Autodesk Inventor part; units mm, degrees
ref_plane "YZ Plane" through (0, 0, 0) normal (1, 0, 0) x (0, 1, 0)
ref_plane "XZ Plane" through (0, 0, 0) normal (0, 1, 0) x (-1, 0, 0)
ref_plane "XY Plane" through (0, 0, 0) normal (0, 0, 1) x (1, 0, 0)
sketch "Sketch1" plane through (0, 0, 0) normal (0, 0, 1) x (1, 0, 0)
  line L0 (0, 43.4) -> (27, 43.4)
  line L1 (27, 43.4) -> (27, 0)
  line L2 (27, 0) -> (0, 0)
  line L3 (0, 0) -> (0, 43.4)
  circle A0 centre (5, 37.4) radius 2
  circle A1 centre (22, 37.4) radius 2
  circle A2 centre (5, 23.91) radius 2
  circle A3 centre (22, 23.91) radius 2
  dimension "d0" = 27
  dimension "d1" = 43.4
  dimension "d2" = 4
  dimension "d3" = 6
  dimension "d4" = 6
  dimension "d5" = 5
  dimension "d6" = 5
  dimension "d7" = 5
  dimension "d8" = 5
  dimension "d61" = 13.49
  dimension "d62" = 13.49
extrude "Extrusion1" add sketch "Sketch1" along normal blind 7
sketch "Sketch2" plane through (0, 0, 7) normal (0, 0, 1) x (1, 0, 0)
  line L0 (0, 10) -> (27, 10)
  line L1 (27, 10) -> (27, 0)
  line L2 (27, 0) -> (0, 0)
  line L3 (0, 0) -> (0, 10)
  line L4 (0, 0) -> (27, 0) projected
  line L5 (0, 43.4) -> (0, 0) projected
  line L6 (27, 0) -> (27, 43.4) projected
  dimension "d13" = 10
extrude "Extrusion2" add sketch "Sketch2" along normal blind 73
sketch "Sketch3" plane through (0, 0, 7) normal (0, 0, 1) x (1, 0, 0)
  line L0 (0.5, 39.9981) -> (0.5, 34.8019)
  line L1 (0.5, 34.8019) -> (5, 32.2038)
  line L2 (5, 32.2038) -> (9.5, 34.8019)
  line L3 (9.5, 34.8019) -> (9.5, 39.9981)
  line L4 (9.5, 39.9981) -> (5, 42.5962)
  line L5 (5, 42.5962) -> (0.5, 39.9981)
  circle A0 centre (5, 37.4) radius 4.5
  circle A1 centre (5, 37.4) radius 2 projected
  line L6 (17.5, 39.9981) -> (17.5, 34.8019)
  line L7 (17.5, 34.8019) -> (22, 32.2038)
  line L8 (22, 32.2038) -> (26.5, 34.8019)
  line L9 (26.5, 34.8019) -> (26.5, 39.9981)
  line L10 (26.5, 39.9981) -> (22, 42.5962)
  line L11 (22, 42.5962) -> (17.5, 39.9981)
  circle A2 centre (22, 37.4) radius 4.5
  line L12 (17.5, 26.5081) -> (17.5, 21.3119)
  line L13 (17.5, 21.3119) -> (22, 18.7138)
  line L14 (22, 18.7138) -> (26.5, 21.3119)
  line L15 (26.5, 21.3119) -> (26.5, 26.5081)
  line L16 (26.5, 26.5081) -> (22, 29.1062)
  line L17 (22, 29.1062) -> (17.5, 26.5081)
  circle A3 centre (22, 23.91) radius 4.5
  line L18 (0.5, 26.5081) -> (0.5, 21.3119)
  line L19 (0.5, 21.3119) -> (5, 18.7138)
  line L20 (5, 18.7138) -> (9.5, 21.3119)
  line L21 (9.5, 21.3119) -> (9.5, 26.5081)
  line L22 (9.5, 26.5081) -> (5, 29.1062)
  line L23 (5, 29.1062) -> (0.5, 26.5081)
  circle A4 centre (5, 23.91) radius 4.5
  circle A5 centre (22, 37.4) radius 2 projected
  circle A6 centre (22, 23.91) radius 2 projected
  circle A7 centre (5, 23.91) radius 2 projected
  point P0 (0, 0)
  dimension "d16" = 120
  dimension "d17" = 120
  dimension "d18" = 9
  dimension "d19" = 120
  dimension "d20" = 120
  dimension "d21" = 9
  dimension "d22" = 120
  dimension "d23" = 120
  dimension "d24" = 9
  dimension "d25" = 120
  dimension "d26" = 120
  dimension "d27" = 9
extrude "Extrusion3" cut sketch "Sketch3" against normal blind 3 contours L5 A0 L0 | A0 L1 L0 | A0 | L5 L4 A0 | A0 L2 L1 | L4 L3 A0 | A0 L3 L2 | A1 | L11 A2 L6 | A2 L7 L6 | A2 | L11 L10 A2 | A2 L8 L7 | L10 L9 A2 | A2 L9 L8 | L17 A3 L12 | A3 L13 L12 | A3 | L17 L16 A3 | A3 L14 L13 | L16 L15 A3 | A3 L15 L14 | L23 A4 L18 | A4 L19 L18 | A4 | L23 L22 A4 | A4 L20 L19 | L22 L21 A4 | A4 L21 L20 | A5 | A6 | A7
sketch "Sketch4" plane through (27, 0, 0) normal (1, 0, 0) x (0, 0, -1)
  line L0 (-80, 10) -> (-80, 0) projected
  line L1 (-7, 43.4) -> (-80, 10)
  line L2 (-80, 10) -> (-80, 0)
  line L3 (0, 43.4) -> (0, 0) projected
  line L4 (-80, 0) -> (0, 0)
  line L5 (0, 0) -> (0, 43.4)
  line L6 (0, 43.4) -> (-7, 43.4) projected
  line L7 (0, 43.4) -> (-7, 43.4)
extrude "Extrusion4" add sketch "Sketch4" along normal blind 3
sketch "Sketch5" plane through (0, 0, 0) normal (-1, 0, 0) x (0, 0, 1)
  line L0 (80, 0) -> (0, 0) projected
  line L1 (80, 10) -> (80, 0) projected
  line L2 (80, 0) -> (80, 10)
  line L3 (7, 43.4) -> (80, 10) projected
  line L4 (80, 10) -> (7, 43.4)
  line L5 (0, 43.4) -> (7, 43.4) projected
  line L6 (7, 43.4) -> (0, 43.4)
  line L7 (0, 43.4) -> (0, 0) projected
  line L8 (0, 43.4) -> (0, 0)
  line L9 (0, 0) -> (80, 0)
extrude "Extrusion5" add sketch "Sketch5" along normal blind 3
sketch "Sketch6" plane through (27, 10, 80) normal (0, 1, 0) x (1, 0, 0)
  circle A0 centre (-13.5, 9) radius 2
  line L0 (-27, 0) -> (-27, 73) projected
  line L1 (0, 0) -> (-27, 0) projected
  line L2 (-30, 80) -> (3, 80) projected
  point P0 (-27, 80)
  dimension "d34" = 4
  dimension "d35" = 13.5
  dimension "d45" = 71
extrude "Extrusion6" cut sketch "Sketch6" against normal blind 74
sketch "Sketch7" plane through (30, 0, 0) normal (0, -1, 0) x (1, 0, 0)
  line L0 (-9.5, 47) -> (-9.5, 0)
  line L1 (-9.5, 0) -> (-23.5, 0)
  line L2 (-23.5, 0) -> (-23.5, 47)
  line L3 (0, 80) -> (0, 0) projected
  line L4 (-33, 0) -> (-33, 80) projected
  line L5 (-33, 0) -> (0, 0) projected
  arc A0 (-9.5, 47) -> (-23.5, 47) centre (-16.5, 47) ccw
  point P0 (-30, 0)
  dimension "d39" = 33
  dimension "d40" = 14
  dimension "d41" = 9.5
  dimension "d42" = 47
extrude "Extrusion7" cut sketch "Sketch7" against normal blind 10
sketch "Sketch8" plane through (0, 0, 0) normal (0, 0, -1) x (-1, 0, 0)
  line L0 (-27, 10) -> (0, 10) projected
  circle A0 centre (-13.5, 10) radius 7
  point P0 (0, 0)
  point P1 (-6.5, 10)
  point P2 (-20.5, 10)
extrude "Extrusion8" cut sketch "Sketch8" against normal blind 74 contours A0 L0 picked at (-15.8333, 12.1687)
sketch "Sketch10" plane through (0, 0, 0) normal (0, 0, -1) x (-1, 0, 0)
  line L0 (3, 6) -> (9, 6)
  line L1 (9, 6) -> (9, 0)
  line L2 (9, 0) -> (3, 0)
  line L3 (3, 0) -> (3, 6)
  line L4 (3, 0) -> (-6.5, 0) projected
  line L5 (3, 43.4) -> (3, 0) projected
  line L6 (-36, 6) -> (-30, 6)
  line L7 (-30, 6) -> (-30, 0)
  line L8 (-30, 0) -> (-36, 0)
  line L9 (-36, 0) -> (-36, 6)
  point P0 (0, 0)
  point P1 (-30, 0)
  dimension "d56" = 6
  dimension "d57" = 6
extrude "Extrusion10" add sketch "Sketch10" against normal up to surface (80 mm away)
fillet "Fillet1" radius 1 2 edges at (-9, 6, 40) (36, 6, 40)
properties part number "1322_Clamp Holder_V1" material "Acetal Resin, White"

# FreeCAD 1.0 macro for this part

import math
import FreeCAD as App
import Part
import Sketcher

V = App.Vector
Q = App.Units.Quantity


def edges_at(feature, points):
    """Names of the edges that pass closest to the given points."""
    edges = feature.Shape.Edges
    near = lambda p: min(range(len(edges)), key=lambda i: edges[i].distToShape(Part.Vertex(*p))[0])
    return sorted({f"Edge{near(p) + 1}" for p in points})

doc = App.newDocument("Part")
body = doc.addObject("PartDesign::Body", "Body")

# Sketch on XY plane
sketch1 = body.newObject("Sketcher::SketchObject", "Sketch")
sketch1.AttachmentSupport = (doc.getObject("XY_Plane"), [""])
sketch1.MapMode = "FlatFace"
sketch1.addGeometry([
    Part.LineSegment(V(27, 43.4, 0), V(0, 43.4, 0)),  # 0
    Part.LineSegment(V(0, 43.4, 0), V(0, 0, 0)),  # 1
    Part.LineSegment(V(0, 0, 0), V(27, 0, 0)),  # 2
    Part.LineSegment(V(27, 0, 0), V(27, 43.4, 0)),  # 3
    Part.Circle(V(5, 23.9, 0), V(0, 0, 1), 2),  # 4
    Part.Circle(V(5, 37.4, 0), V(0, 0, 1), 2),  # 5
    Part.Circle(V(22, 23.9, 0), V(0, 0, 1), 2),  # 6
    Part.Circle(V(22, 37.4, 0), V(0, 0, 1), 2),  # 7
], False)
sketch1.addConstraint([
    Sketcher.Constraint("Coincident", 0, 2, 1, 1),
    Sketcher.Constraint("Coincident", 1, 2, 2, 1),
    Sketcher.Constraint("Coincident", 2, 2, 3, 1),
    Sketcher.Constraint("Coincident", 3, 2, 0, 1),
    Sketcher.Constraint("Horizontal", 0),
    Sketcher.Constraint("Vertical", 1),
    Sketcher.Constraint("Horizontal", 2),
    Sketcher.Constraint("Vertical", 3),
    Sketcher.Constraint("Coincident", 1, 2, -1, 1),
    Sketcher.Constraint("Equal", 4, 5),
    Sketcher.Constraint("Equal", 5, 6),
    Sketcher.Constraint("Equal", 6, 7),
    Sketcher.Constraint("Horizontal", 4, 3, 6, 3),
    Sketcher.Constraint("Horizontal", 5, 3, 7, 3),
    Sketcher.Constraint("Vertical", 4, 3, 5, 3),
    Sketcher.Constraint("Vertical", 6, 3, 7, 3),
    Sketcher.Constraint("Diameter", 4, Q("4 mm")),
    Sketcher.Constraint("DistanceX", 0, 2, 0, 1, Q("27 mm")),
    Sketcher.Constraint("DistanceY", 1, 2, 1, 1, Q("43.4 mm")),
    Sketcher.Constraint("DistanceX", -1, 1, 4, 3, Q("5 mm")),
    Sketcher.Constraint("DistanceY", 5, 3, 0, 2, Q("6 mm")),
    Sketcher.Constraint("DistanceX", 6, 3, 2, 2, Q("5 mm")),
    Sketcher.Constraint("DistanceY", 4, 3, 5, 3, Q("13.49 mm")),
])
pad1 = body.newObject("PartDesign::Pad", "Pad")
pad1.Profile = sketch1
pad1.Length = 7

# Sketch on XY plane
sketch2 = body.newObject("Sketcher::SketchObject", "Sketch001")
sketch2.AttachmentSupport = (doc.getObject("XY_Plane"), [""])
sketch2.MapMode = "FlatFace"
sketch2.AttachmentOffset = App.Placement(V(0, 0, 7), App.Rotation())
sketch2.addGeometry([
    Part.LineSegment(V(27, 10, 0), V(0, 10, 0)),
    Part.LineSegment(V(0, 10, 0), V(0, 0, 0)),
    Part.LineSegment(V(0, 0, 0), V(27, 0, 0)),
    Part.LineSegment(V(27, 0, 0), V(27, 10, 0)),
], False)
sketch2.addConstraint([
    Sketcher.Constraint("Coincident", 0, 2, 1, 1),
    Sketcher.Constraint("Coincident", 1, 2, 2, 1),
    Sketcher.Constraint("Coincident", 2, 2, 3, 1),
    Sketcher.Constraint("Coincident", 3, 2, 0, 1),
    Sketcher.Constraint("Horizontal", 0),
    Sketcher.Constraint("Vertical", 1),
    Sketcher.Constraint("Horizontal", 2),
    Sketcher.Constraint("Vertical", 3),
    Sketcher.Constraint("Coincident", 1, 2, -1, 1),
    Sketcher.Constraint("DistanceY", 1, 2, 1, 1, Q("10 mm")),
    Sketcher.Constraint("DistanceX", 0, 2, 0, 1, Q("27 mm")),
])
pad2 = body.newObject("PartDesign::Pad", "Pad001")
pad2.Profile = sketch2
pad2.Length = 73

# Sketch on XY plane
sketch3 = body.newObject("Sketcher::SketchObject", "Sketch002")
sketch3.AttachmentSupport = (doc.getObject("XY_Plane"), [""])
sketch3.MapMode = "FlatFace"
sketch3.AttachmentOffset = App.Placement(V(0, 0, 7), App.Rotation())
sketch3.addGeometry([
    Part.LineSegment(V(0, 40, 0), V(0, 35, 0)),  # 0
    Part.LineSegment(V(0, 35, 0), V(5, 32, 0)),  # 1
    Part.LineSegment(V(5, 32, 0), V(10, 35, 0)),  # 2
    Part.LineSegment(V(10, 35, 0), V(10, 40, 0)),  # 3
    Part.LineSegment(V(10, 40, 0), V(5, 43, 0)),  # 4
    Part.LineSegment(V(5, 43, 0), V(0, 40, 0)),  # 5
    Part.LineSegment(V(18, 40, 0), V(18, 35, 0)),  # 6
    Part.LineSegment(V(18, 35, 0), V(22, 32, 0)),  # 7
    Part.LineSegment(V(22, 32, 0), V(26, 35, 0)),  # 8
    Part.LineSegment(V(26, 35, 0), V(26, 40, 0)),  # 9
    Part.LineSegment(V(26, 40, 0), V(22, 43, 0)),  # 10
    Part.LineSegment(V(22, 43, 0), V(18, 40, 0)),  # 11
    Part.LineSegment(V(18, 27, 0), V(18, 21, 0)),  # 12
    Part.LineSegment(V(18, 21, 0), V(22, 19, 0)),  # 13
    Part.LineSegment(V(22, 19, 0), V(26, 21, 0)),  # 14
    Part.LineSegment(V(26, 21, 0), V(26, 27, 0)),  # 15
    Part.LineSegment(V(26, 27, 0), V(22, 29, 0)),  # 16
    Part.LineSegment(V(22, 29, 0), V(18, 27, 0)),  # 17
    Part.LineSegment(V(0, 27, 0), V(0, 21, 0)),  # 18
    Part.LineSegment(V(0, 21, 0), V(5, 19, 0)),  # 19
    Part.LineSegment(V(5, 19, 0), V(10, 21, 0)),  # 20
    Part.LineSegment(V(10, 21, 0), V(10, 27, 0)),  # 21
    Part.LineSegment(V(10, 27, 0), V(5, 29, 0)),  # 22
    Part.LineSegment(V(5, 29, 0), V(0, 27, 0)),  # 23
], False)
sketch3.addConstraint([
    Sketcher.Constraint("Coincident", 0, 2, 1, 1),
    Sketcher.Constraint("Coincident", 1, 2, 2, 1),
    Sketcher.Constraint("Coincident", 2, 2, 3, 1),
    Sketcher.Constraint("Coincident", 3, 2, 4, 1),
    Sketcher.Constraint("Coincident", 4, 2, 5, 1),
    Sketcher.Constraint("Coincident", 5, 2, 0, 1),
    Sketcher.Constraint("Coincident", 6, 2, 7, 1),
    Sketcher.Constraint("Coincident", 7, 2, 8, 1),
    Sketcher.Constraint("Coincident", 8, 2, 9, 1),
    Sketcher.Constraint("Coincident", 9, 2, 10, 1),
    Sketcher.Constraint("Coincident", 10, 2, 11, 1),
    Sketcher.Constraint("Coincident", 11, 2, 6, 1),
    Sketcher.Constraint("Coincident", 12, 2, 13, 1),
    Sketcher.Constraint("Coincident", 13, 2, 14, 1),
    Sketcher.Constraint("Coincident", 14, 2, 15, 1),
    Sketcher.Constraint("Coincident", 15, 2, 16, 1),
    Sketcher.Constraint("Coincident", 16, 2, 17, 1),
    Sketcher.Constraint("Coincident", 17, 2, 12, 1),
    Sketcher.Constraint("Coincident", 18, 2, 19, 1),
    Sketcher.Constraint("Coincident", 19, 2, 20, 1),
    Sketcher.Constraint("Coincident", 20, 2, 21, 1),
    Sketcher.Constraint("Coincident", 21, 2, 22, 1),
    Sketcher.Constraint("Coincident", 22, 2, 23, 1),
    Sketcher.Constraint("Coincident", 23, 2, 18, 1),
    Sketcher.Constraint("Vertical", 0),
    Sketcher.Constraint("Vertical", 3),
    Sketcher.Constraint("Vertical", 6),
    Sketcher.Constraint("Vertical", 9),
    Sketcher.Constraint("Vertical", 12),
    Sketcher.Constraint("Vertical", 15),
    Sketcher.Constraint("Vertical", 18),
    Sketcher.Constraint("Vertical", 21),
    Sketcher.Constraint("Parallel", 1, 4),
    Sketcher.Constraint("Parallel", 2, 5),
    Sketcher.Constraint("Parallel", 4, 7),
    Sketcher.Constraint("Parallel", 5, 8),
    Sketcher.Constraint("Parallel", 7, 10),
    Sketcher.Constraint("Parallel", 8, 11),
    Sketcher.Constraint("Parallel", 10, 13),
    Sketcher.Constraint("Parallel", 11, 14),
    Sketcher.Constraint("Parallel", 13, 16),
    Sketcher.Constraint("Parallel", 14, 17),
    Sketcher.Constraint("Parallel", 16, 19),
    Sketcher.Constraint("Parallel", 17, 20),
    Sketcher.Constraint("Parallel", 19, 22),
    Sketcher.Constraint("Parallel", 20, 23),
    Sketcher.Constraint("Horizontal", 0, 2, 2, 2),
    Sketcher.Constraint("Horizontal", 3, 2, 5, 2),
    Sketcher.Constraint("Horizontal", 2, 2, 6, 2),
    Sketcher.Constraint("Horizontal", 1, 2, 7, 2),
    Sketcher.Constraint("Horizontal", 6, 2, 8, 2),
    Sketcher.Constraint("Horizontal", 5, 2, 9, 2),
    Sketcher.Constraint("Horizontal", 4, 2, 10, 2),
    Sketcher.Constraint("Horizontal", 12, 2, 14, 2),
    Sketcher.Constraint("Horizontal", 15, 2, 17, 2),
    Sketcher.Constraint("Horizontal", 14, 2, 18, 2),
    Sketcher.Constraint("Horizontal", 13, 2, 19, 2),
    Sketcher.Constraint("Horizontal", 18, 2, 20, 2),
    Sketcher.Constraint("Horizontal", 17, 2, 21, 2),
    Sketcher.Constraint("Horizontal", 16, 2, 22, 2),
    Sketcher.Constraint("Vertical", 1, 2, 4, 2),
    Sketcher.Constraint("Vertical", 11, 2, 12, 2),
    Sketcher.Constraint("Vertical", 10, 2, 13, 2),
    Sketcher.Constraint("Vertical", 5, 2, 18, 2),
    Sketcher.Constraint("Equal", 9, 12),
    Sketcher.Constraint("DistanceX", 0, 2, 2, 2, Q("9 mm")),
    Sketcher.Constraint("Angle", 1, Q("-30.0002 deg")),
    Sketcher.Constraint("DistanceX", -1, 1, 1, 2, Q("5 mm")),
    Sketcher.Constraint("DistanceX", -1, 1, 7, 2, Q("22 mm")),
    Sketcher.Constraint("DistanceY", 12, 2, 6, 2, Q("13.49 mm")),
    Sketcher.Constraint("DistanceY", 0, 2, 0, 1, Q("5.1962 mm")),
    Sketcher.Constraint("DistanceY", -1, 1, 0, 2, Q("34.802 mm")),
])
pocket1 = body.newObject("PartDesign::Pocket", "Pocket")
pocket1.Profile = sketch3
pocket1.Length = 3

# Sketch on YZ plane
sketch4 = body.newObject("Sketcher::SketchObject", "Sketch003")
sketch4.AttachmentSupport = (doc.getObject("YZ_Plane"), [""])
sketch4.MapMode = "FlatFace"
sketch4.AttachmentOffset = App.Placement(V(0, 0, 27), App.Rotation())
sketch4.addGeometry([
    Part.LineSegment(V(43, 7, 0), V(10, 80, 0)),  # 0
    Part.LineSegment(V(10, 80, 0), V(0, 80, 0)),  # 1
    Part.LineSegment(V(0, 80, 0), V(0, 0, 0)),  # 2
    Part.LineSegment(V(0, 0, 0), V(43, 0, 0)),  # 3
    Part.LineSegment(V(43, 0, 0), V(43, 7, 0)),  # 4
], False)
sketch4.addConstraint([
    Sketcher.Constraint("Coincident", 0, 2, 1, 1),
    Sketcher.Constraint("Coincident", 1, 2, 2, 1),
    Sketcher.Constraint("Coincident", 2, 2, 3, 1),
    Sketcher.Constraint("Coincident", 3, 2, 4, 1),
    Sketcher.Constraint("Coincident", 4, 2, 0, 1),
    Sketcher.Constraint("Horizontal", 1),
    Sketcher.Constraint("Vertical", 2),
    Sketcher.Constraint("Horizontal", 3),
    Sketcher.Constraint("Vertical", 4),
    Sketcher.Constraint("Coincident", 2, 2, -1, 1),
    Sketcher.Constraint("DistanceX", 1, 2, 1, 1, Q("10 mm")),
    Sketcher.Constraint("DistanceY", 2, 2, 2, 1, Q("80 mm")),
    Sketcher.Constraint("DistanceY", 4, 1, 4, 2, Q("7 mm")),
    Sketcher.Constraint("DistanceX", 3, 1, 3, 2, Q("43.4 mm")),
])
pad3 = body.newObject("PartDesign::Pad", "Pad002")
pad3.Profile = sketch4
pad3.Length = 3

# Sketch on YZ plane
sketch5 = body.newObject("Sketcher::SketchObject", "Sketch004")
sketch5.AttachmentSupport = (doc.getObject("YZ_Plane"), [""])
sketch5.MapMode = "FlatFace"
sketch5.addGeometry([
    Part.LineSegment(V(0, 0, 0), V(0, 80, 0)),  # 0
    Part.LineSegment(V(0, 80, 0), V(10, 80, 0)),  # 1
    Part.LineSegment(V(10, 80, 0), V(43, 7, 0)),  # 2
    Part.LineSegment(V(43, 7, 0), V(43, 0, 0)),  # 3
    Part.LineSegment(V(43, 0, 0), V(0, 0, 0)),  # 4
], False)
sketch5.addConstraint([
    Sketcher.Constraint("Coincident", 0, 2, 1, 1),
    Sketcher.Constraint("Coincident", 1, 2, 2, 1),
    Sketcher.Constraint("Coincident", 2, 2, 3, 1),
    Sketcher.Constraint("Coincident", 3, 2, 4, 1),
    Sketcher.Constraint("Coincident", 4, 2, 0, 1),
    Sketcher.Constraint("Vertical", 0),
    Sketcher.Constraint("Horizontal", 1),
    Sketcher.Constraint("Vertical", 3),
    Sketcher.Constraint("Horizontal", 4),
    Sketcher.Constraint("Coincident", 4, 2, -1, 1),
    Sketcher.Constraint("DistanceX", 1, 1, 1, 2, Q("10 mm")),
    Sketcher.Constraint("DistanceY", 0, 1, 0, 2, Q("80 mm")),
    Sketcher.Constraint("DistanceY", 3, 2, 3, 1, Q("7 mm")),
    Sketcher.Constraint("DistanceX", 4, 2, 4, 1, Q("43.4 mm")),
])
pad4 = body.newObject("PartDesign::Pad", "Pad003")
pad4.Profile = sketch5
pad4.Length = 3
pad4.Reversed = True

# Sketch on XZ plane
sketch6 = body.newObject("Sketcher::SketchObject", "Sketch005")
sketch6.AttachmentSupport = (doc.getObject("XZ_Plane"), [""])
sketch6.MapMode = "FlatFace"
sketch6.AttachmentOffset = App.Placement(V(0, 0, -10), App.Rotation())
sketch6.addGeometry(Part.Circle(V(13.5, 71, 0), V(0, 0, 1), 2), False)
sketch6.addConstraint([
    Sketcher.Constraint("Diameter", 0, Q("4 mm")),
    Sketcher.Constraint("DistanceY", -1, 1, 0, 3, Q("71 mm")),
    Sketcher.Constraint("DistanceX", -1, 1, 0, 3, Q("13.5 mm")),
])
pocket2 = body.newObject("PartDesign::Pocket", "Pocket001")
pocket2.Profile = sketch6
pocket2.Length = 74
pocket2.Reversed = True

# Sketch on XZ plane
sketch7 = body.newObject("Sketcher::SketchObject", "Sketch006")
sketch7.AttachmentSupport = (doc.getObject("XZ_Plane"), [""])
sketch7.MapMode = "FlatFace"
sketch7.addGeometry([
    Part.LineSegment(V(20, 0, 0), V(20, 47, 0)),
    Part.ArcOfCircle(Part.Circle(V(14, 47, 0), V(0, 0, 1), 7), math.radians(0), math.radians(180)),
    Part.LineSegment(V(6, 47, 0), V(6, 0, 0)),
    Part.LineSegment(V(6, 0, 0), V(20, 0, 0)),
], False)
sketch7.addConstraint([
    Sketcher.Constraint("Tangent", 0, 2, 1, 1),
    Sketcher.Constraint("Tangent", 1, 2, 2, 1),
    Sketcher.Constraint("Coincident", 2, 2, 3, 1),
    Sketcher.Constraint("Coincident", 3, 2, 0, 1),
    Sketcher.Constraint("Vertical", 0),
    Sketcher.Constraint("Vertical", 2),
    Sketcher.Constraint("Horizontal", 3),
    Sketcher.Constraint("PointOnObject", 2, 2, -1),
    Sketcher.Constraint("Radius", 1, Q("7 mm")),
    Sketcher.Constraint("DistanceY", 0, 1, 0, 2, Q("47 mm")),
    Sketcher.Constraint("DistanceX", -1, 1, 1, 3, Q("13.5 mm")),
])
pocket3 = body.newObject("PartDesign::Pocket", "Pocket002")
pocket3.Profile = sketch7
pocket3.Length = 10

# Sketch on XY plane
sketch8 = body.newObject("Sketcher::SketchObject", "Sketch007")
sketch8.AttachmentSupport = (doc.getObject("XY_Plane"), [""])
sketch8.MapMode = "FlatFace"
sketch8.addGeometry([
    Part.ArcOfCircle(Part.Circle(V(14, 10, 0), V(0, 0, 1), 7), math.radians(0), math.radians(180)),
    Part.LineSegment(V(20, 10, 0), V(6, 10, 0)),
], False)
sketch8.addConstraint([
    Sketcher.Constraint("Coincident", 0, 1, 1, 1),
    Sketcher.Constraint("Coincident", 1, 2, 0, 2),
    Sketcher.Constraint("Horizontal", 1),
    Sketcher.Constraint("Radius", 0, Q("7 mm")),
    Sketcher.Constraint("DistanceY", -1, 1, 0, 3, Q("10 mm")),
    Sketcher.Constraint("DistanceY", -1, 1, 0, 1, Q("10 mm")),
    Sketcher.Constraint("DistanceX", -1, 1, 0, 3, Q("13.5 mm")),
])
pocket4 = body.newObject("PartDesign::Pocket", "Pocket003")
pocket4.Profile = sketch8
pocket4.Length = 74
pocket4.Reversed = True

# Sketch on XY plane
sketch9 = body.newObject("Sketcher::SketchObject", "Sketch008")
sketch9.AttachmentSupport = (doc.getObject("XY_Plane"), [""])
sketch9.MapMode = "FlatFace"
sketch9.addGeometry([
    Part.LineSegment(V(-9, 6, 0), V(-3, 6, 0)),  # 0
    Part.LineSegment(V(-3, 6, 0), V(-3, 0, 0)),  # 1
    Part.LineSegment(V(-3, 0, 0), V(-9, 0, 0)),  # 2
    Part.LineSegment(V(-9, 0, 0), V(-9, 6, 0)),  # 3
    Part.LineSegment(V(30, 6, 0), V(36, 6, 0)),  # 4
    Part.LineSegment(V(36, 6, 0), V(36, 0, 0)),  # 5
    Part.LineSegment(V(36, 0, 0), V(30, 0, 0)),  # 6
    Part.LineSegment(V(30, 0, 0), V(30, 6, 0)),  # 7
], False)
sketch9.addConstraint([
    Sketcher.Constraint("Coincident", 0, 2, 1, 1),
    Sketcher.Constraint("Coincident", 1, 2, 2, 1),
    Sketcher.Constraint("Coincident", 2, 2, 3, 1),
    Sketcher.Constraint("Coincident", 3, 2, 0, 1),
    Sketcher.Constraint("Coincident", 4, 2, 5, 1),
    Sketcher.Constraint("Coincident", 5, 2, 6, 1),
    Sketcher.Constraint("Coincident", 6, 2, 7, 1),
    Sketcher.Constraint("Coincident", 7, 2, 4, 1),
    Sketcher.Constraint("Horizontal", 0),
    Sketcher.Constraint("Vertical", 1),
    Sketcher.Constraint("Horizontal", 2),
    Sketcher.Constraint("Vertical", 3),
    Sketcher.Constraint("Horizontal", 4),
    Sketcher.Constraint("Vertical", 5),
    Sketcher.Constraint("Horizontal", 6),
    Sketcher.Constraint("Vertical", 7),
    Sketcher.Constraint("PointOnObject", 1, 2, -1),
    Sketcher.Constraint("PointOnObject", 5, 2, -1),
    Sketcher.Constraint("Horizontal", 3, 2, 4, 2),
    Sketcher.Constraint("Equal", 2, 4),
    Sketcher.Constraint("Equal", 6, 1),
    Sketcher.Constraint("DistanceX", 0, 1, 0, 2, Q("6 mm")),
    Sketcher.Constraint("DistanceX", 0, 2, -1, 1, Q("3 mm")),
    Sketcher.Constraint("DistanceX", -1, 1, 4, 2, Q("36 mm")),
])
pad5 = body.newObject("PartDesign::Pad", "Pad004")
pad5.Profile = sketch9
pad5.Length = 80
doc.recompute()

fillet = body.newObject("PartDesign::Fillet", "Fillet")
fillet.Base = (pad5, edges_at(pad5, [(-9, 6, 40), (36, 6, 40)]))
fillet.Radius = 1

doc.recompute()
